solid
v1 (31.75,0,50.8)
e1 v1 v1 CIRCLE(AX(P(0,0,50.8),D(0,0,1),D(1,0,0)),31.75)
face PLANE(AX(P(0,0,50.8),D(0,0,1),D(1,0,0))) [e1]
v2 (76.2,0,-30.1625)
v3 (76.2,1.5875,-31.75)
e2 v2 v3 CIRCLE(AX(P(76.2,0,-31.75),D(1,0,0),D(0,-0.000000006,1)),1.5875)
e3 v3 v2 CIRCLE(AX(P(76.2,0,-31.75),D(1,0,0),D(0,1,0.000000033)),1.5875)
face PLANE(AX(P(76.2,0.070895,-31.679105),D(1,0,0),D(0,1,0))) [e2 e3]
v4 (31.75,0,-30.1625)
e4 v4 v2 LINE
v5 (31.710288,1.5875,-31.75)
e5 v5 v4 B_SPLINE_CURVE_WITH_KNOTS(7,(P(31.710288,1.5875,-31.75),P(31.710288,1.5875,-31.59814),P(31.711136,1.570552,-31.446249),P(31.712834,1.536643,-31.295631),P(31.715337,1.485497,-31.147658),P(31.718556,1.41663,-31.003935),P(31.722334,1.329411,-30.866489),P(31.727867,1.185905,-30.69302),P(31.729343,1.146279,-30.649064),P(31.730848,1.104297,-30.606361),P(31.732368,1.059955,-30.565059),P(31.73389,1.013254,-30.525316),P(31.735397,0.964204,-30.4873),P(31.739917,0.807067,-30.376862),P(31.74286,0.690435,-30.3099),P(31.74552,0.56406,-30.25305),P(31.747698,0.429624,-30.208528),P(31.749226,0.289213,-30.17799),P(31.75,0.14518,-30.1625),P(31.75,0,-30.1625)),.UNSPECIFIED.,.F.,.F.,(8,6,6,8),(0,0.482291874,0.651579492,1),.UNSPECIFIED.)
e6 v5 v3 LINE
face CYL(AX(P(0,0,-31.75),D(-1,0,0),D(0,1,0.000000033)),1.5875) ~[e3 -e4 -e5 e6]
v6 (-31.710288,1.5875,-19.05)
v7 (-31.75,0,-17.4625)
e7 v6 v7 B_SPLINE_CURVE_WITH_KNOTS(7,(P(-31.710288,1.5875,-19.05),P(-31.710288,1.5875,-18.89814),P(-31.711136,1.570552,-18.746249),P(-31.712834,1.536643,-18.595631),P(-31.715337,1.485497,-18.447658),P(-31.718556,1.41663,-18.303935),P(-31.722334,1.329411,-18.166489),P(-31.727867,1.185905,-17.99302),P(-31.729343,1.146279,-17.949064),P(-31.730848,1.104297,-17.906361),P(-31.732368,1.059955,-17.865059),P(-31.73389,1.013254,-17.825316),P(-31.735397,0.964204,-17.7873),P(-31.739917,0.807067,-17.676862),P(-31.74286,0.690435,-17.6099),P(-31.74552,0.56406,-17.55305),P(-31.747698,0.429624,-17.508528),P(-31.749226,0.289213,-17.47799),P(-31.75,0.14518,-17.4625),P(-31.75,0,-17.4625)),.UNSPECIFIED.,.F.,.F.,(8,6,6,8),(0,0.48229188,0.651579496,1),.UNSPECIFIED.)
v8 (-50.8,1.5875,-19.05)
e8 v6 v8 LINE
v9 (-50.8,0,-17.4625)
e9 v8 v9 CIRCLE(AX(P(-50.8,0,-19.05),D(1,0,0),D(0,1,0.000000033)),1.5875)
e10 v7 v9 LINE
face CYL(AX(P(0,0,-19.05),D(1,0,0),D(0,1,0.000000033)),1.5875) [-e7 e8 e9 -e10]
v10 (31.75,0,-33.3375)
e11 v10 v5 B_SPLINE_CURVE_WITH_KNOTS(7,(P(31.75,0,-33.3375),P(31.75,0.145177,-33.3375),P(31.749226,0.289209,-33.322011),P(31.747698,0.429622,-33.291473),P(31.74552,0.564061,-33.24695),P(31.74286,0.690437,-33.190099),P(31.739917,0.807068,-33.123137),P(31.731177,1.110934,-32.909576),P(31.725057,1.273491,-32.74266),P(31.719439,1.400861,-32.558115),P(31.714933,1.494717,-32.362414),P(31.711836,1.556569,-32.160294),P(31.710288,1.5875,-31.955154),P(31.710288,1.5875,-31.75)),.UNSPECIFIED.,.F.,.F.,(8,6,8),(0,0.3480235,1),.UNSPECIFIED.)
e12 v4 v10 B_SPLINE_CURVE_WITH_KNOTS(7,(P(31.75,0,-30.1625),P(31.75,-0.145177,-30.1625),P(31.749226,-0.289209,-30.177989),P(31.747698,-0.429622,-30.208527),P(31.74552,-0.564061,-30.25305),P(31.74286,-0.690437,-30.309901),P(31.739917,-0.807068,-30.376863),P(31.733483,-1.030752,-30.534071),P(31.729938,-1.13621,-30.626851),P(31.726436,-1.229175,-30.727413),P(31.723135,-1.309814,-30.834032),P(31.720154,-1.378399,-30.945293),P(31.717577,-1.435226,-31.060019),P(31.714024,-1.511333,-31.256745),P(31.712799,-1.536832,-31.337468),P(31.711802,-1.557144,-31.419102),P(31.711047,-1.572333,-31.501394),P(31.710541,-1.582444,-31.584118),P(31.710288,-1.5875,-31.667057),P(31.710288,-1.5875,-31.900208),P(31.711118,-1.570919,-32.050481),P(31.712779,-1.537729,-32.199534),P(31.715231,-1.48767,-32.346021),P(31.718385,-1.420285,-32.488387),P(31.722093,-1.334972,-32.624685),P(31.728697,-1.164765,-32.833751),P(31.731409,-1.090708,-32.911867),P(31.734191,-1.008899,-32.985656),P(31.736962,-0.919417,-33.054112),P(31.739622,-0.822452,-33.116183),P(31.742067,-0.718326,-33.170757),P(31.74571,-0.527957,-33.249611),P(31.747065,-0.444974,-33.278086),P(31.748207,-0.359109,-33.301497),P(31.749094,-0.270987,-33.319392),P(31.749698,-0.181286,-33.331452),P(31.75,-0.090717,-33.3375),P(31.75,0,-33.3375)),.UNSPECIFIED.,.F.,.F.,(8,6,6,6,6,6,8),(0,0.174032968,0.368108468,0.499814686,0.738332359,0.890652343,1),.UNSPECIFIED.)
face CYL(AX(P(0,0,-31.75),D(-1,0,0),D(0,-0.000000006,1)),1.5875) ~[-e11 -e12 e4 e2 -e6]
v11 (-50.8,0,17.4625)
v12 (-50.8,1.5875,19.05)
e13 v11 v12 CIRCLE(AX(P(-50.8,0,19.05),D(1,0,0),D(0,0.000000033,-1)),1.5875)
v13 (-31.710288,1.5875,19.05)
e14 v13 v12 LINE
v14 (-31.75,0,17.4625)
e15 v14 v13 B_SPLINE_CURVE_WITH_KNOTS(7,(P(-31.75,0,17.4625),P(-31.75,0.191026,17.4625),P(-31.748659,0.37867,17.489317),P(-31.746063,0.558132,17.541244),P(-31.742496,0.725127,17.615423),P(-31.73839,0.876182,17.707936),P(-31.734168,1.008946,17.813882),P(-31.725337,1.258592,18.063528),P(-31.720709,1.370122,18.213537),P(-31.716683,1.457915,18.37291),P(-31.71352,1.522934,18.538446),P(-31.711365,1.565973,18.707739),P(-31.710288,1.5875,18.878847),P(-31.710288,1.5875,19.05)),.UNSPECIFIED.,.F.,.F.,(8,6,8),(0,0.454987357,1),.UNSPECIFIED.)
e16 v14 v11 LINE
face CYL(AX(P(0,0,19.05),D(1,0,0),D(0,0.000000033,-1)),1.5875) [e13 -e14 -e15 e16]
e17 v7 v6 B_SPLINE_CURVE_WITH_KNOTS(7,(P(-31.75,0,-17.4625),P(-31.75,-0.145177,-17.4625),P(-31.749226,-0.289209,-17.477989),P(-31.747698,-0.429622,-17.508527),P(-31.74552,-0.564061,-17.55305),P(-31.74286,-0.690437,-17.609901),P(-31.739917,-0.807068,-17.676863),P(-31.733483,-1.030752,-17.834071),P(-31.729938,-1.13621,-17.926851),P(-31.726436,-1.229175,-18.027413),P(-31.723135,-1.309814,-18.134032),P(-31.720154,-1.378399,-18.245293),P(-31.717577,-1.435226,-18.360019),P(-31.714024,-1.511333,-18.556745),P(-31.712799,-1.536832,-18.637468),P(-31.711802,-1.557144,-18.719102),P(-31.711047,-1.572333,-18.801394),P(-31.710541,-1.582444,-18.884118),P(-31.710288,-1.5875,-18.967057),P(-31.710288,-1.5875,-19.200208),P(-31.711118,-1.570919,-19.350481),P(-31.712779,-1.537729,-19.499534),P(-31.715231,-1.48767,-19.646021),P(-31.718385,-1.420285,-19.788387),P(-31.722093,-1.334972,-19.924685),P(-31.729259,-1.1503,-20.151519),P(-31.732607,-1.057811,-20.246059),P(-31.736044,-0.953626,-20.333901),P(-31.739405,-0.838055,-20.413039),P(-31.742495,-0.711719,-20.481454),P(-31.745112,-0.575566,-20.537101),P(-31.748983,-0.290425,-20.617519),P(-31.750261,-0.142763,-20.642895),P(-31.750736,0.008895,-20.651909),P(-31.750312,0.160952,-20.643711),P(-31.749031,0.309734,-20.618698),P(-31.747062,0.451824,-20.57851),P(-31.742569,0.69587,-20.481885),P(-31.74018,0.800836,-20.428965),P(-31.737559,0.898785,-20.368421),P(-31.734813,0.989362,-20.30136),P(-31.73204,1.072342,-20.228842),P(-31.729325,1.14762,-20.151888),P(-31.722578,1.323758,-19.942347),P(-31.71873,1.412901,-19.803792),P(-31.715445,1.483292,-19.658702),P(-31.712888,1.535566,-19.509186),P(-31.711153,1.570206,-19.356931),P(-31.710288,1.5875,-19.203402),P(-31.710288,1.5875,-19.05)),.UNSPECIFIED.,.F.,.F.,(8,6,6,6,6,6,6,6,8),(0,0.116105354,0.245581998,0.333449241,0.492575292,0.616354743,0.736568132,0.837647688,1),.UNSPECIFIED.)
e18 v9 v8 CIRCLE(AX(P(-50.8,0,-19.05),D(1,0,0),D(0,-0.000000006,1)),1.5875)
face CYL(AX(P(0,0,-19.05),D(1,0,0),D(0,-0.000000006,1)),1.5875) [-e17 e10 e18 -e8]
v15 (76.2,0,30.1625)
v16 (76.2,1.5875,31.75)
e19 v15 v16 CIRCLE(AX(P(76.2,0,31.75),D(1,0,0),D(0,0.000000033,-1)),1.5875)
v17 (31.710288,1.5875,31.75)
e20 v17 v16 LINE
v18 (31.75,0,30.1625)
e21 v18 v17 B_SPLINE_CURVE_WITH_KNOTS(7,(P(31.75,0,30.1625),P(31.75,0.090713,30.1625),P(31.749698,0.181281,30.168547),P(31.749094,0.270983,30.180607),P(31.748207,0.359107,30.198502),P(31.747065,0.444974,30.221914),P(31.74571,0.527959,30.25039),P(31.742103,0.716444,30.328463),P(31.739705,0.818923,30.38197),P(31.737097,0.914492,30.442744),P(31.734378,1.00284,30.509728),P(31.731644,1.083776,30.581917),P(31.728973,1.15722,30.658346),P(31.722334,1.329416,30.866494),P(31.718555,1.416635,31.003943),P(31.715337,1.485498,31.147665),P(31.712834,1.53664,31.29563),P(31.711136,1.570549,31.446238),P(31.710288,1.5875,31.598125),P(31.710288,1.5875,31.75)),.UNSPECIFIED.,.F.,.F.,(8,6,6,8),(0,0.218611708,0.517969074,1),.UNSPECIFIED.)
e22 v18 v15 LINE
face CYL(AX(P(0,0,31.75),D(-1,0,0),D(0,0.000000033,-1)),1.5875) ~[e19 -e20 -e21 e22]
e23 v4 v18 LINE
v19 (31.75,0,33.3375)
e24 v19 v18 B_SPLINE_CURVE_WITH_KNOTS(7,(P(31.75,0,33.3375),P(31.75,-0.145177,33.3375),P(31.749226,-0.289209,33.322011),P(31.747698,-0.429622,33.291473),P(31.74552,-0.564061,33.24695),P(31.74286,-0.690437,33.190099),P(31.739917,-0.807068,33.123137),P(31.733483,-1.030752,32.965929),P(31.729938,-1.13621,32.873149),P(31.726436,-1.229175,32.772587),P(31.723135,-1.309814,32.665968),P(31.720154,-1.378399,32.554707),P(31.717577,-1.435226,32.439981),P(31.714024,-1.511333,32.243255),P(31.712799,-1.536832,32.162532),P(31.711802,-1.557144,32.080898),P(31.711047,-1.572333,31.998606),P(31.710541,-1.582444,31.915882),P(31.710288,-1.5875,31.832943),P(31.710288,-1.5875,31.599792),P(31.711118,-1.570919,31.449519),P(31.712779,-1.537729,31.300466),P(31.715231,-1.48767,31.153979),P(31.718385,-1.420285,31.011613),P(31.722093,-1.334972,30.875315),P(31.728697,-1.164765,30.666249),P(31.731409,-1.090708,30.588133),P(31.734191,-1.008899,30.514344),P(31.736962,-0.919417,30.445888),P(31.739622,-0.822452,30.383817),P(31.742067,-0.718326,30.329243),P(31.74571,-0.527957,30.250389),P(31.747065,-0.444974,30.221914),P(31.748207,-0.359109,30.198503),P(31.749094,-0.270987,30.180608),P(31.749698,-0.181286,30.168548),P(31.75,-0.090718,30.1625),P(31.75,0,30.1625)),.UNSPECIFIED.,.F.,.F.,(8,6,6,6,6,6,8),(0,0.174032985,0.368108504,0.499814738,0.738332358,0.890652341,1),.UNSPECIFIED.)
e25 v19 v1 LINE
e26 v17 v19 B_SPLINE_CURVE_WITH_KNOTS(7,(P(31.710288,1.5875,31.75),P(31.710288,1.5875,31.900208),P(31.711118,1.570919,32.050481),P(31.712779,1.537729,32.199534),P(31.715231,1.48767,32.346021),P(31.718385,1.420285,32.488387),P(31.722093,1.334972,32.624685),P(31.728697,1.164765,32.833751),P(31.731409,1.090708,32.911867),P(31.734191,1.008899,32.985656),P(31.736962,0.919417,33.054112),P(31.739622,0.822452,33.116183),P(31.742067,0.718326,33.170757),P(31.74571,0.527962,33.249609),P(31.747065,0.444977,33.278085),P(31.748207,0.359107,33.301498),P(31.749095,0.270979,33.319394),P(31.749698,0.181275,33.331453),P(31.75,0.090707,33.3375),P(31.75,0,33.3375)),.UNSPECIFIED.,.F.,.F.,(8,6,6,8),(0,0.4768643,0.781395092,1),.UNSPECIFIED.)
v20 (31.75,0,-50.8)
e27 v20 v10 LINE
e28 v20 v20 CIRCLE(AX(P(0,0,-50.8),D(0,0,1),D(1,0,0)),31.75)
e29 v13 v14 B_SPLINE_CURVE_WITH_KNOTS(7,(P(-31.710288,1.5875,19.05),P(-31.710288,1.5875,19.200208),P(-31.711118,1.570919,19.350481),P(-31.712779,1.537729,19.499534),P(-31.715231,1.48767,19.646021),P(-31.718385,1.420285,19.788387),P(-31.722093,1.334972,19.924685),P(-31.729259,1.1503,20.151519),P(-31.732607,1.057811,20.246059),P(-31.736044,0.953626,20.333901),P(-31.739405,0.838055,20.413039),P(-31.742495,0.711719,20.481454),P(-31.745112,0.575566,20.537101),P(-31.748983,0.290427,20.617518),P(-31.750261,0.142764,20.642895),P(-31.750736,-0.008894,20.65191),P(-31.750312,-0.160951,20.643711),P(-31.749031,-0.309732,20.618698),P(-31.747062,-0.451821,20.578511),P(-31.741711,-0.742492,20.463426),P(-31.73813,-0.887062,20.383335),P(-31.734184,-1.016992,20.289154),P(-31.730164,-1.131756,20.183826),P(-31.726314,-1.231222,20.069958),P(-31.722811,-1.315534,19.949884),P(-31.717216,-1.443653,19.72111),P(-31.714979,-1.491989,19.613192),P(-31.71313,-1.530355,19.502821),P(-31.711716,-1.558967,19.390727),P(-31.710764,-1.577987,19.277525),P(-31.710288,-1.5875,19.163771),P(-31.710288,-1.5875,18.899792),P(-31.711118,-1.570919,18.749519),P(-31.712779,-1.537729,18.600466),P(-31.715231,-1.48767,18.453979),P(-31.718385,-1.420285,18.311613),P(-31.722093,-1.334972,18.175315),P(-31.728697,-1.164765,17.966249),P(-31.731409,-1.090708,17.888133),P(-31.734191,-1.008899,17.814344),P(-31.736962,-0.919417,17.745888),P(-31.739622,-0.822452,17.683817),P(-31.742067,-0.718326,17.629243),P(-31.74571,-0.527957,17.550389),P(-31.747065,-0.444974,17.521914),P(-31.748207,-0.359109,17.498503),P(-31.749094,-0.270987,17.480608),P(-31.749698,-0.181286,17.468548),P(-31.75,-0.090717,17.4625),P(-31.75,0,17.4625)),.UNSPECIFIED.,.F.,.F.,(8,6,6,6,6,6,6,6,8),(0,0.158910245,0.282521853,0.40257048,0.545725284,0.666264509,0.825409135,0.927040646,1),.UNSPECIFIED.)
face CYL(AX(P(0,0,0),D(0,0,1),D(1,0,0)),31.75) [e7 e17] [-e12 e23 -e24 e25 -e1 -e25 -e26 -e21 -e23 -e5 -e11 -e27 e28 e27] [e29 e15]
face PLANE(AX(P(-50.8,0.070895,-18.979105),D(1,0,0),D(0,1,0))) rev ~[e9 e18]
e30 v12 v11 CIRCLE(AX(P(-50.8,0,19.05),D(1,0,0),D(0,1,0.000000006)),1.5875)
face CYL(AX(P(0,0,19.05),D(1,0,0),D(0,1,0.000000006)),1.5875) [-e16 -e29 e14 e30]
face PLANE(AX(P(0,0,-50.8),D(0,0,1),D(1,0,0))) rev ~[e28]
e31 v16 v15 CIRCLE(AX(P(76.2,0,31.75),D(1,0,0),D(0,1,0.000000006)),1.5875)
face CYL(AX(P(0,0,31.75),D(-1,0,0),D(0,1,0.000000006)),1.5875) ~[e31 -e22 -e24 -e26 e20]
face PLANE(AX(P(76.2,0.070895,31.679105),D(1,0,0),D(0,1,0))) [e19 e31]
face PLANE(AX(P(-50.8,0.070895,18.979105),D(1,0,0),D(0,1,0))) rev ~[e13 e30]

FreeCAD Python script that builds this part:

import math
import FreeCAD as App
import Part
import Sketcher
Q = App.Units.Quantity

doc = App.newDocument("Part")
body = doc.addObject("PartDesign::Body", "Body")

# Sketch on XY plane
sketch1 = doc.addObject("Sketcher::SketchObject", "Sketch")
body.addObject(sketch1)
sketch1.AttachmentSupport = (doc.XY_Plane, [""])
sketch1.MapMode = "FlatFace"
sketch1.addGeometry(Part.Circle(App.Vector(0, 0, 0), App.Vector(0, 0, 1), 32), False)
sketch1.addConstraint([
    Sketcher.Constraint("Coincident", 0, 3, -1, 1),
    Sketcher.Constraint("Diameter", 0, Q("2.5 in")),
])
pad1 = doc.addObject("PartDesign::Pad", "Pad")
body.addObject(pad1)
pad1.Profile = sketch1
pad1.Type = "TwoLengths"
pad1.Length = Q("2 in")
pad1.Length2 = Q("2 in")

# Sketch on YZ plane
sketch2 = doc.addObject("Sketcher::SketchObject", "Sketch001")
body.addObject(sketch2)
sketch2.AttachmentSupport = (doc.YZ_Plane, [""])
sketch2.MapMode = "FlatFace"
sketch2.addGeometry([
    Part.ArcOfCircle(Part.Circle(App.Vector(0, -31.8, 0), App.Vector(0, 0, 1), 1.6), math.radians(0), math.radians(90)),
    Part.ArcOfCircle(Part.Circle(App.Vector(0, -31.7, 0), App.Vector(0, 0, 1), 1.6), math.radians(90), math.radians(360)),
    Part.ArcOfCircle(Part.Circle(App.Vector(0, 31.7, 0), App.Vector(0, 0, 1), 1.6), math.radians(0), math.radians(270)),
    Part.ArcOfCircle(Part.Circle(App.Vector(0, 31.8, 0), App.Vector(0, 0, 1), 1.6), math.radians(-90), math.radians(0)),
], False)
sketch2.addConstraint([
    Sketcher.Constraint("Tangent", 0, 1, 1, 2),
    Sketcher.Constraint("Coincident", 1, 1, 0, 2),
    Sketcher.Constraint("Tangent", 2, 1, 3, 2),
    Sketcher.Constraint("Coincident", 3, 1, 2, 2),
    Sketcher.Constraint("Equal", 1, 2),
    Sketcher.Constraint("Symmetric", 0, 3, 2, 3, -1, 1),
    Sketcher.Constraint("Symmetric", 0, 1, 2, 1, -1),
    Sketcher.Constraint("PointOnObject", 1, 1, -2),
    Sketcher.Constraint("PointOnObject", 3, 1, -2),
    Sketcher.Constraint("Horizontal", 1, 3, 0, 1),
    Sketcher.Constraint("Radius", 0, Q("0.0625 in")),
    Sketcher.Constraint("DistanceY", 1, 3, 2, 3, Q("2.5 in")),
])
pad2 = doc.addObject("PartDesign::Pad", "Pad001")
body.addObject(pad2)
pad2.Profile = sketch2
pad2.Length = Q("3 in")

# Sketch on YZ plane
sketch3 = doc.addObject("Sketcher::SketchObject", "Sketch002")
body.addObject(sketch3)
sketch3.AttachmentSupport = (doc.YZ_Plane, [""])
sketch3.MapMode = "FlatFace"
sketch3.addGeometry([
    Part.ArcOfCircle(Part.Circle(App.Vector(0, 19, 0), App.Vector(0, 0, 1), 1.6), math.radians(0), math.radians(270)),
    Part.ArcOfCircle(Part.Circle(App.Vector(0, 19.1, 0), App.Vector(0, 0, 1), 1.6), math.radians(-90), math.radians(0)),
    Part.ArcOfCircle(Part.Circle(App.Vector(0, -19.1, 0), App.Vector(0, 0, 1), 1.6), math.radians(0), math.radians(90)),
    Part.ArcOfCircle(Part.Circle(App.Vector(0, -19, 0), App.Vector(0, 0, 1), 1.6), math.radians(90), math.radians(360)),
], False)
sketch3.addConstraint([
    Sketcher.Constraint("Tangent", 0, 1, 1, 2),
    Sketcher.Constraint("Coincident", 1, 1, 0, 2),
    Sketcher.Constraint("Tangent", 2, 1, 3, 2),
    Sketcher.Constraint("Coincident", 3, 1, 2, 2),
    Sketcher.Constraint("Equal", 1, 2),
    Sketcher.Constraint("Symmetric", 0, 3, 2, 3, -1, 1),
    Sketcher.Constraint("Symmetric", 0, 1, 2, 1, -1),
    Sketcher.Constraint("PointOnObject", 1, 1, -2),
    Sketcher.Constraint("PointOnObject", 3, 1, -2),
    Sketcher.Constraint("Horizontal", 1, 3, 0, 1),
    Sketcher.Constraint("Radius", 0, Q("0.0625 in")),
    Sketcher.Constraint("DistanceY", 2, 3, 0, 3, Q("1.5 in")),
])
pad3 = doc.addObject("PartDesign::Pad", "Pad002")
body.addObject(pad3)
pad3.Profile = sketch3
pad3.Length = Q("2 in")
pad3.Reversed = True

doc.recompute()
